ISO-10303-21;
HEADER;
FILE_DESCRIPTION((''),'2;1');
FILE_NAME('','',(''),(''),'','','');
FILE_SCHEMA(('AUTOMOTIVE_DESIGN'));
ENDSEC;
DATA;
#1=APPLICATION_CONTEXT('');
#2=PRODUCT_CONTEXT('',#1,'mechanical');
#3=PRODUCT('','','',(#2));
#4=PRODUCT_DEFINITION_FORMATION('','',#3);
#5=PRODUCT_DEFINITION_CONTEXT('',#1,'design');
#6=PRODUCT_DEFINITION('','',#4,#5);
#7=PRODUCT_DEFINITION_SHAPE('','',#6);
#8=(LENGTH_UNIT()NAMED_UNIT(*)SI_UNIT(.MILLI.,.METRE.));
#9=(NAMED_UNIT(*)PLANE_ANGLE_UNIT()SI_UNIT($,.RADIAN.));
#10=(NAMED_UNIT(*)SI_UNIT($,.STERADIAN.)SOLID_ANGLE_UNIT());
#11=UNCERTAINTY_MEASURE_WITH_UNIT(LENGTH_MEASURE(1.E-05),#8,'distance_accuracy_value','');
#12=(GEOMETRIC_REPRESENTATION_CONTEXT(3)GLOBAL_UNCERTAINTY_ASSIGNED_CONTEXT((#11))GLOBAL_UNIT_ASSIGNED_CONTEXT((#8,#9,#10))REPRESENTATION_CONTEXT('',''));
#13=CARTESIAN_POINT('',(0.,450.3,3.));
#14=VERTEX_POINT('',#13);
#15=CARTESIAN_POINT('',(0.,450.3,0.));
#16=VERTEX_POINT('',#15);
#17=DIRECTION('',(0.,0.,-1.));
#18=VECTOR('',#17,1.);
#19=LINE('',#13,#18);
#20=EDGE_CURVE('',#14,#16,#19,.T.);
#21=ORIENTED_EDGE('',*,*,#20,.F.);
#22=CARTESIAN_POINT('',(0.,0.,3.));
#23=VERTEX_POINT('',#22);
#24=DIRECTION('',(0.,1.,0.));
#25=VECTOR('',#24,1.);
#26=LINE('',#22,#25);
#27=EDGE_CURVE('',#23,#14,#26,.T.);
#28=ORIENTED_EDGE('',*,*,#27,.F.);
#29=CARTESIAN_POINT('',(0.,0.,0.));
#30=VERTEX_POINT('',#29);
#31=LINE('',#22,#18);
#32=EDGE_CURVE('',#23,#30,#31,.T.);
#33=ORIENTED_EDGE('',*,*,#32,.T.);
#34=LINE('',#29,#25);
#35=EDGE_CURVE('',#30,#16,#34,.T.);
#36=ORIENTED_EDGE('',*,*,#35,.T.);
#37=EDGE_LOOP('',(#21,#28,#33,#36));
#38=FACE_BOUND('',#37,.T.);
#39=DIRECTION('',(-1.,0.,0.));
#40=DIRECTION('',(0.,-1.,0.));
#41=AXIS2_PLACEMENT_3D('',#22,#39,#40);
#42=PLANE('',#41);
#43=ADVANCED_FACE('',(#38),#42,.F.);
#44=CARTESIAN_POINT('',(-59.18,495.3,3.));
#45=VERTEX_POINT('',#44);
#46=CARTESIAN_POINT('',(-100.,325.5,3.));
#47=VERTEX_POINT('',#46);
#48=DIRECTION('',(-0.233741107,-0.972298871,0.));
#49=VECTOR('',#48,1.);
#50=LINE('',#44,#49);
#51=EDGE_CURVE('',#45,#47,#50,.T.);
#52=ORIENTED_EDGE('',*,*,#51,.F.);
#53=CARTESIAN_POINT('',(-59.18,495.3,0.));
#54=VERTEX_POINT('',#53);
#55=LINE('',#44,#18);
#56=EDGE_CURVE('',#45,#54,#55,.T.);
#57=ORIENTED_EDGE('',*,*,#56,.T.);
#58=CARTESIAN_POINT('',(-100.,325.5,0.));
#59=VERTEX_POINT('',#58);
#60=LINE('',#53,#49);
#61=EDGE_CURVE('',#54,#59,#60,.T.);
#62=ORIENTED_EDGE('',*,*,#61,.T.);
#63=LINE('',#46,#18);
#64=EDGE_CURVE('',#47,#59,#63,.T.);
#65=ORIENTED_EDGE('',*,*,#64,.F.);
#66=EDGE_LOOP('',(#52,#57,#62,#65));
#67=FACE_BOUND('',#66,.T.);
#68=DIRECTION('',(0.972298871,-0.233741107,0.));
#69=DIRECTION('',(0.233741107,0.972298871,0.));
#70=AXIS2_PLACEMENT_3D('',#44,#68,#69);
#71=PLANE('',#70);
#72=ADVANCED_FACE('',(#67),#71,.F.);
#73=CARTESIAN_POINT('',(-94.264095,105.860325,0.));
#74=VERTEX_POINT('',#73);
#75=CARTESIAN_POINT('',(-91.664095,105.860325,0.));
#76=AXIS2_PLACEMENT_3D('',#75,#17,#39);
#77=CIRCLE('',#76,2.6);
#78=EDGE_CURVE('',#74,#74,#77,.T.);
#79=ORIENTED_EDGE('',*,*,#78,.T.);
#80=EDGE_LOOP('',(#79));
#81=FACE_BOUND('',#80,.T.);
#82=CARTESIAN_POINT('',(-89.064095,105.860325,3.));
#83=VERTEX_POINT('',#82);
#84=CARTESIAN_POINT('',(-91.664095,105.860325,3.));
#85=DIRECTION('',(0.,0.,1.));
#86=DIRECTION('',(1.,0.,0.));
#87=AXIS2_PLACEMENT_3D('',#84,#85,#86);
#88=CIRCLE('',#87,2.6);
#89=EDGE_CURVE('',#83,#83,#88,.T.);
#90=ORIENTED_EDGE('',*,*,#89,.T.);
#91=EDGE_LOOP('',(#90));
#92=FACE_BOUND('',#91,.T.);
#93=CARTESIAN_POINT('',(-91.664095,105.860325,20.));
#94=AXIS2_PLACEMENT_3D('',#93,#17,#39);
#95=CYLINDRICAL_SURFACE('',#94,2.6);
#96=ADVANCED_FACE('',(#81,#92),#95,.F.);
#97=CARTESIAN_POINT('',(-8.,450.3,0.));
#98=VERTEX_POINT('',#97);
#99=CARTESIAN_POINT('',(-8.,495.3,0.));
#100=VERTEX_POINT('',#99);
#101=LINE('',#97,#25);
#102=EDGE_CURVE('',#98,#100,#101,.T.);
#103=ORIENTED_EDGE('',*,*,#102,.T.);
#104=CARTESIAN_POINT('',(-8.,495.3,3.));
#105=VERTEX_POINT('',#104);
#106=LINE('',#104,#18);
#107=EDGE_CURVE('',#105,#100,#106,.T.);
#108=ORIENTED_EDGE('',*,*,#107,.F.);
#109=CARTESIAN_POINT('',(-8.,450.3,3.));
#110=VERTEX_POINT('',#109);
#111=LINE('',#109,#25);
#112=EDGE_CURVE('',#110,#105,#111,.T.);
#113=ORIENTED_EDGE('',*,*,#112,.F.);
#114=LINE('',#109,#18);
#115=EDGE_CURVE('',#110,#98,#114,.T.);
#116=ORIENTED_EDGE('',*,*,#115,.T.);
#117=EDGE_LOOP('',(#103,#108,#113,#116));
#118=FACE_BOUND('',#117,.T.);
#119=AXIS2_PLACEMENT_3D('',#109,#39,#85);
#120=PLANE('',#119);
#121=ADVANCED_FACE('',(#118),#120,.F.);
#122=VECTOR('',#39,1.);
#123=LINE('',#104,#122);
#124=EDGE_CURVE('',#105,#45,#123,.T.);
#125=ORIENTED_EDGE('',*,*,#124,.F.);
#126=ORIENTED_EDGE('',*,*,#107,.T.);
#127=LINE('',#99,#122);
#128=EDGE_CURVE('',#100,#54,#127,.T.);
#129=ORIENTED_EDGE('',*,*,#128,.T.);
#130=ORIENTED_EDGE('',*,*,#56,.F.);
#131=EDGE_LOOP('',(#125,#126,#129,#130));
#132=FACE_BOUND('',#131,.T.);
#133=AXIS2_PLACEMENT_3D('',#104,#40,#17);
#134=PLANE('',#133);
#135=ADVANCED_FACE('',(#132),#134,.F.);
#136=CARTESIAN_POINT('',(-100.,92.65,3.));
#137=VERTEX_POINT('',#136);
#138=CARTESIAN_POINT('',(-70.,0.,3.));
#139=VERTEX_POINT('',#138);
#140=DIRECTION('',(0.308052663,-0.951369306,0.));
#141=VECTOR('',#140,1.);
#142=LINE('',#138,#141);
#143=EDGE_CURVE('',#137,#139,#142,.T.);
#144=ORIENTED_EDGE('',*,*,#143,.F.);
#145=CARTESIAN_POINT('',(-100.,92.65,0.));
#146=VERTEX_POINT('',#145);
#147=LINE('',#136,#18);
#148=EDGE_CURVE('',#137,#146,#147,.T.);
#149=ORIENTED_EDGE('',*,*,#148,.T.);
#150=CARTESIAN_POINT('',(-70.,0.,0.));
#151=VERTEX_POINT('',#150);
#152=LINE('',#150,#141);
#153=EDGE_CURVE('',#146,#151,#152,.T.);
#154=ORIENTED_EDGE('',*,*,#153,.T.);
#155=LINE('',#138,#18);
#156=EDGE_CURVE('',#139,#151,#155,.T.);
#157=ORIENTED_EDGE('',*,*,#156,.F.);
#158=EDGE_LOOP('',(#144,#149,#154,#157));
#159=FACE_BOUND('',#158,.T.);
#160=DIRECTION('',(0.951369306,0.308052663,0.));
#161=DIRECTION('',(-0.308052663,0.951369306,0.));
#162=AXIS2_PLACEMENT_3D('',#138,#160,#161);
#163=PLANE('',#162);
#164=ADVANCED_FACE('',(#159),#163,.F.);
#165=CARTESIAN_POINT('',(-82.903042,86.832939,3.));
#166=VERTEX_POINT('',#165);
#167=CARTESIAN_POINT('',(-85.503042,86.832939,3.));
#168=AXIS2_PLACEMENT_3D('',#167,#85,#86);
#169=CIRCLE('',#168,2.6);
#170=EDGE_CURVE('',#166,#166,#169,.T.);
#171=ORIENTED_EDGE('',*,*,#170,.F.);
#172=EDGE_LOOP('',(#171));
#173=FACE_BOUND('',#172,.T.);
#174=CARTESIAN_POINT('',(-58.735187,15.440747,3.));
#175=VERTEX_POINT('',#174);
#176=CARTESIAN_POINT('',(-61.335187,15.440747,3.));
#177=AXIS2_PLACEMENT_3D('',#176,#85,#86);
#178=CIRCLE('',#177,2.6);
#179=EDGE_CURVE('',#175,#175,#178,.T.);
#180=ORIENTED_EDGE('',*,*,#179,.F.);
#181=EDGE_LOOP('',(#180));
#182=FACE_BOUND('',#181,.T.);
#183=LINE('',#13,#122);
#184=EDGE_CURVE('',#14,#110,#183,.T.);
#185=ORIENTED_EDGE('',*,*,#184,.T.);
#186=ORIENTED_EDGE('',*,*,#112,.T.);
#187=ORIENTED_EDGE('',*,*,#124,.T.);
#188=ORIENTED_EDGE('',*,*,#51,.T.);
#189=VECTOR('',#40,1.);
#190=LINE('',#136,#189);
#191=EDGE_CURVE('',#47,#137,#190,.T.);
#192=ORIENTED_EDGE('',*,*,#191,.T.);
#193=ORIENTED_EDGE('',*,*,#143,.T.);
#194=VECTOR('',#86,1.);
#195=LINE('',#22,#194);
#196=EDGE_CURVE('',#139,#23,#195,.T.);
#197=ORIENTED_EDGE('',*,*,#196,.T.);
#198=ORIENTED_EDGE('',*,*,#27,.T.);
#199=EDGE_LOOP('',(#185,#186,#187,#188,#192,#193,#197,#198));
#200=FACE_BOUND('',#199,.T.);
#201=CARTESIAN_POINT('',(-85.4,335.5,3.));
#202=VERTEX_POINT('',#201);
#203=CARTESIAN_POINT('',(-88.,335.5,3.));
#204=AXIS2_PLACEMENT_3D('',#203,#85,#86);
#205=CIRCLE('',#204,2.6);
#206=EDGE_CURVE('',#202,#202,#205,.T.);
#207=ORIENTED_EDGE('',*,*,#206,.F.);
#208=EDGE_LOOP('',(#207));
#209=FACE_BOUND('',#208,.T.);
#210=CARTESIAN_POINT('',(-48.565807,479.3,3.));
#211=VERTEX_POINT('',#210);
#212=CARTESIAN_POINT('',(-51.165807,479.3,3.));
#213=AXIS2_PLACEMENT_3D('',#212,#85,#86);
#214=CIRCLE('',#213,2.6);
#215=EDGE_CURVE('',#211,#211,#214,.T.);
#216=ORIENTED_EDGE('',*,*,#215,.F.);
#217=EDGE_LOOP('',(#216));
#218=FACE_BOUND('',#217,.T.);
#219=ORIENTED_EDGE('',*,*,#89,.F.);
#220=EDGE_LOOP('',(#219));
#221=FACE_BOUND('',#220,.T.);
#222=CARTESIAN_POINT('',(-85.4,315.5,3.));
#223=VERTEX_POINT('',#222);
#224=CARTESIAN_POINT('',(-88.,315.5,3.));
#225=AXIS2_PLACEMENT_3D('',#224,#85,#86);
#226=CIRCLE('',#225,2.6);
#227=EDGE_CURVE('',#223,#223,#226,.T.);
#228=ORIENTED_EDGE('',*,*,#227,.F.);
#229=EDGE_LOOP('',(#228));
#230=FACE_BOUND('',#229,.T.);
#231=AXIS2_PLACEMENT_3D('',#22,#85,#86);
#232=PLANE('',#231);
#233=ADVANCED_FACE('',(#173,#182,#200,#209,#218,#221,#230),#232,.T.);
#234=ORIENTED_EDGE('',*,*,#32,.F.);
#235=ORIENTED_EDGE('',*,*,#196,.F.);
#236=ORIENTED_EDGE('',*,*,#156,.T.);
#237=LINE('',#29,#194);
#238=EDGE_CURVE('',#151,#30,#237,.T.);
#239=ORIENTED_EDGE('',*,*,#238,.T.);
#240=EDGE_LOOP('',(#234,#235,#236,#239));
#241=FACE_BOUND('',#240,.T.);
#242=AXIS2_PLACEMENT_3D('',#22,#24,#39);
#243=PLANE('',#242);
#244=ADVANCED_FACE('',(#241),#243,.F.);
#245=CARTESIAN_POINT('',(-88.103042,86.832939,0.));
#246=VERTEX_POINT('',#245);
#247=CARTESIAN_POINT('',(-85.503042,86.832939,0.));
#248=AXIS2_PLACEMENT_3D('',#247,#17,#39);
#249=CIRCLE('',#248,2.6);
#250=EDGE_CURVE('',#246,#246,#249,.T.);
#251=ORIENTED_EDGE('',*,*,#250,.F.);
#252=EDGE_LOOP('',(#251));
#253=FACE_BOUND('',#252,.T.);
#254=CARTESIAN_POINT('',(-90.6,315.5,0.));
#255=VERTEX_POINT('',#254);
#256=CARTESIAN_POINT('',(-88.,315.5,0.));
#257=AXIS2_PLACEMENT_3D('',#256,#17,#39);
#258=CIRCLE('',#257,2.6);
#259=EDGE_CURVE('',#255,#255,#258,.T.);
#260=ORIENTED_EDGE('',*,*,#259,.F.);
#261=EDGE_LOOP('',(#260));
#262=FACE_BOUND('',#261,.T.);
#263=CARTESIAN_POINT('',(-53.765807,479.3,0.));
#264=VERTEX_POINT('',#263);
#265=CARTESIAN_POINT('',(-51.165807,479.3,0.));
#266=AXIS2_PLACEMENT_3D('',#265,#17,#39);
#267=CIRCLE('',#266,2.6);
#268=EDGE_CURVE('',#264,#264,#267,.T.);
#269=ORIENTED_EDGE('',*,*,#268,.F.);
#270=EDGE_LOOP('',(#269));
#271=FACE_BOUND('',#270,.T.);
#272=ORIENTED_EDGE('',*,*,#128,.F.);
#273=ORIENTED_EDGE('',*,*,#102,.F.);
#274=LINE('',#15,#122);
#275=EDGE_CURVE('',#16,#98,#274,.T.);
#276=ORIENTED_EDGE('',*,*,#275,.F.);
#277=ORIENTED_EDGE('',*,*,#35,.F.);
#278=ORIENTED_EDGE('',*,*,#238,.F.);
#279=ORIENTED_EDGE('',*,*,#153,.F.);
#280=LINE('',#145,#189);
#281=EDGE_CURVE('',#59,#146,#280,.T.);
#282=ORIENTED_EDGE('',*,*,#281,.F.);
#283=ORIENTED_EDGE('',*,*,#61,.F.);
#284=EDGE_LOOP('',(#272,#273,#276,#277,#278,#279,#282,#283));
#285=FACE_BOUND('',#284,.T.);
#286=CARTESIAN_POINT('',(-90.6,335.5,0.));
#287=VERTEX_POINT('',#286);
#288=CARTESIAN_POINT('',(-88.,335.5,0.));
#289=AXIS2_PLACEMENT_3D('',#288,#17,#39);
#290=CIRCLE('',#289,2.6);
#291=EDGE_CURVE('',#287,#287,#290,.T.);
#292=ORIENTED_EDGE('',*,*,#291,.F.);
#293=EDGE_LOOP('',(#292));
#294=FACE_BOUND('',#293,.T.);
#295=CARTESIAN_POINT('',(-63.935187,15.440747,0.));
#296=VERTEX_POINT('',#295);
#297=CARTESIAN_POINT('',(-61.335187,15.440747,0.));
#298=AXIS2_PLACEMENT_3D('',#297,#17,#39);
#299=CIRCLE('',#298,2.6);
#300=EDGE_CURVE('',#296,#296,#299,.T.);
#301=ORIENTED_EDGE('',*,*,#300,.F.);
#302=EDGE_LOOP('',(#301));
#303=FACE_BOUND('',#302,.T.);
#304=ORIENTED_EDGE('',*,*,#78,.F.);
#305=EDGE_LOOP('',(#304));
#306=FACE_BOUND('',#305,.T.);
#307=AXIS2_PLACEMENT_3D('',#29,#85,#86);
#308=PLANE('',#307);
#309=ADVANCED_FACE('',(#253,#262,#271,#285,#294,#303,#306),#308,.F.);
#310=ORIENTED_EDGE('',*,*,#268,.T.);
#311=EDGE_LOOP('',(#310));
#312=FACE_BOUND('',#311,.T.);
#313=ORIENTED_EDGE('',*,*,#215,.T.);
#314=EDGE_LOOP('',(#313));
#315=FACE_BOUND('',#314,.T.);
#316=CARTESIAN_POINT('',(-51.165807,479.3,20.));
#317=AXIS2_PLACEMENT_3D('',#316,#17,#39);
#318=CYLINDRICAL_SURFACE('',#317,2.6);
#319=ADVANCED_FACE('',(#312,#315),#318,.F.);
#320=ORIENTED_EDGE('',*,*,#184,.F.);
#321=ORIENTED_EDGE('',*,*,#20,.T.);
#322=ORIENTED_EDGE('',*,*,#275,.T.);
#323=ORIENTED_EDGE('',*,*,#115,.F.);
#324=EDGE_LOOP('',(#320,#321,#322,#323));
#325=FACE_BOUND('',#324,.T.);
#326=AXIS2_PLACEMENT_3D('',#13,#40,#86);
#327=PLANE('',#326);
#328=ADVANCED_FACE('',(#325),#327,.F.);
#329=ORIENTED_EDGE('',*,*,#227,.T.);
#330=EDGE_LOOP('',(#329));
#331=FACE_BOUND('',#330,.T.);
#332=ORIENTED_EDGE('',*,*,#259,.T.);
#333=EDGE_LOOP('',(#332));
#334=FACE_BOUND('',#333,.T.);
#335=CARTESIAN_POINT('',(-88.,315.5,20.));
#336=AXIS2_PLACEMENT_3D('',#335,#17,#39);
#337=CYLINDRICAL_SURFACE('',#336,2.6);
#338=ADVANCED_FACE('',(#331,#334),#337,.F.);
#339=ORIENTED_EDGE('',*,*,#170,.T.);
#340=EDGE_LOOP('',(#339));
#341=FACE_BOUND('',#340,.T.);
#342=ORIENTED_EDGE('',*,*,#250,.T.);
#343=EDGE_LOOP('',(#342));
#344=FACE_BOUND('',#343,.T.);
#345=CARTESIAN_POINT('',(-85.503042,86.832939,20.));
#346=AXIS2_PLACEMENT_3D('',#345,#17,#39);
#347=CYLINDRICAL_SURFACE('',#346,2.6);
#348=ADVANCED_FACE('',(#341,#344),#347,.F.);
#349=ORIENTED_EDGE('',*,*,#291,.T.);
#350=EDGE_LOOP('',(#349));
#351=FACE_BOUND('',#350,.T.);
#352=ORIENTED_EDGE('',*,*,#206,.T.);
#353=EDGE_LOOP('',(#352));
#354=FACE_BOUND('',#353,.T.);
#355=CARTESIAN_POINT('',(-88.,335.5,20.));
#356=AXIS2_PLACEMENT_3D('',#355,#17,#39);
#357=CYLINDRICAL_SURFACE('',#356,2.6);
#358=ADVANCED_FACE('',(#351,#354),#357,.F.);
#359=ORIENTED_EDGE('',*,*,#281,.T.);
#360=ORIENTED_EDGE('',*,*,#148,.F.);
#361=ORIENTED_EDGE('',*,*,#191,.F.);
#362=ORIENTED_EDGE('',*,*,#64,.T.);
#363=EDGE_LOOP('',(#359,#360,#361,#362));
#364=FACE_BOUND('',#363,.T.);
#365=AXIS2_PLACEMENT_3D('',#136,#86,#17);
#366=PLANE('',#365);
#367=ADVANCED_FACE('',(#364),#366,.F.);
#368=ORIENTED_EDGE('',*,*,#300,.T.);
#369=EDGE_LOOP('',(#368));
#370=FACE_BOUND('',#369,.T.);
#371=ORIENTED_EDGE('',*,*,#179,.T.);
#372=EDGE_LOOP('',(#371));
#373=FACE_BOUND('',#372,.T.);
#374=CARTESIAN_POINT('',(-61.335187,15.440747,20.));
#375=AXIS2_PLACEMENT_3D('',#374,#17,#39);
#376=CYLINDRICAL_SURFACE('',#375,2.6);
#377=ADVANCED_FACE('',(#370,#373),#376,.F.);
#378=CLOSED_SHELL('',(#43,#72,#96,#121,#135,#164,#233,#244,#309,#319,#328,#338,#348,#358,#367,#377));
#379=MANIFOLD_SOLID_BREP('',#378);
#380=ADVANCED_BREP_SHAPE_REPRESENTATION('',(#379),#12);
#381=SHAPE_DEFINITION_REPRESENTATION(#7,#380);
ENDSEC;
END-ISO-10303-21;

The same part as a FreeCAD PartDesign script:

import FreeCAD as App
import Part
import Sketcher
from FreeCAD import Vector
Q = App.Units.Quantity


def add_polygon(sketch, points):
    """Adds a closed chain of lines whose ends are joined by coincident constraints."""
    first, n = sketch.GeometryCount, len(points)
    for a, b in zip(points, points[1:] + points[:1]):
        sketch.addGeometry(Part.LineSegment(App.Vector(*a, 0), App.Vector(*b, 0)), False)
    for i in range(n):
        sketch.addConstraint(Sketcher.Constraint("Coincident", first + i, 2, first + (i + 1) % n, 1))

doc = App.newDocument("Part")
body = doc.addObject("PartDesign::Body", "Body")

sketch1 = body.newObject("Sketcher::SketchObject", "Sketch")
sketch1.AttachmentSupport = (doc.getObject("XY_Plane"), [""])
sketch1.MapMode = "FlatFace"
add_polygon(sketch1, [(0, 450), (-8, 450), (-8, 495), (-59, 495), (-100, 326), (-100, 93), (-70, 0), (0, 0)])
sketch1.addConstraint(Sketcher.Constraint("Horizontal", 0))
sketch1.addConstraint(Sketcher.Constraint("Vertical", 1))
sketch1.addConstraint(Sketcher.Constraint("Horizontal", 2))
sketch1.addConstraint(Sketcher.Constraint("Vertical", 4))
sketch1.addConstraint(Sketcher.Constraint("Horizontal", 6))
sketch1.addConstraint(Sketcher.Constraint("Vertical", 7))
sketch1.addConstraint(Sketcher.Constraint("Coincident", 6, 2, -1, 1))
sketch1.addConstraint(Sketcher.Constraint("DistanceX", 0, 2, 0, 1, Q("8 mm")))
sketch1.addConstraint(Sketcher.Constraint("DistanceX", 6, 1, 6, 2, Q("70 mm")))
sketch1.addConstraint(Sketcher.Constraint("DistanceY", 1, 1, 1, 2, Q("45 mm")))
sketch1.addConstraint(Sketcher.Constraint("DistanceY", 7, 1, 7, 2, Q("450.3 mm")))
sketch1.addConstraint(Sketcher.Constraint("DistanceX", 3, 2, -1, 1, Q("100 mm")))
sketch1.addConstraint(Sketcher.Constraint("DistanceX", 2, 2, 2, 1, Q("51.18 mm")))
sketch1.addConstraint(Sketcher.Constraint("DistanceY", 4, 2, 4, 1, Q("232.85 mm")))
sketch1.addConstraint(Sketcher.Constraint("DistanceY", -1, 1, 3, 2, Q("325.5 mm")))
pad1 = body.newObject("PartDesign::Pad", "Pad")
pad1.Profile = sketch1
pad1.Length = 3

sketch2 = body.newObject("Sketcher::SketchObject", "Sketch001")
sketch2.AttachmentSupport = (doc.getObject("XY_Plane"), [""])
sketch2.MapMode = "FlatFace"
sketch2.addGeometry(Part.Circle(Vector(-61.3, 15.4, 0), Vector(0, 0, 1), 2.6), False)
sketch2.addGeometry(Part.Circle(Vector(-85.5, 86.8, 0), Vector(0, 0, 1), 2.6), False)
sketch2.addGeometry(Part.Circle(Vector(-91.7, 105.9, 0), Vector(0, 0, 1), 2.6), False)
sketch2.addGeometry(Part.Circle(Vector(-88, 315.5, 0), Vector(0, 0, 1), 2.6), False)
sketch2.addGeometry(Part.Circle(Vector(-88, 335.5, 0), Vector(0, 0, 1), 2.6), False)
sketch2.addGeometry(Part.Circle(Vector(-51.2, 479.3, 0), Vector(0, 0, 1), 2.6), False)
sketch2.addConstraint(Sketcher.Constraint("Equal", 0, 1))
sketch2.addConstraint(Sketcher.Constraint("Equal", 1, 2))
sketch2.addConstraint(Sketcher.Constraint("Equal", 2, 3))
sketch2.addConstraint(Sketcher.Constraint("Equal", 3, 4))
sketch2.addConstraint(Sketcher.Constraint("Equal", 4, 5))
sketch2.addConstraint(Sketcher.Constraint("Vertical", 3, 3, 4, 3))
sketch2.addConstraint(Sketcher.Constraint("Diameter", 0, Q("5.2 mm")))
sketch2.addConstraint(Sketcher.Constraint("DistanceX", 3, 3, -1, 1, Q("88 mm")))
sketch2.addConstraint(Sketcher.Constraint("DistanceY", 3, 3, 4, 3, Q("20 mm")))
sketch2.addConstraint(Sketcher.Constraint("DistanceY", -1, 1, 3, 3, Q("315.5 mm")))
sketch2.addConstraint(Sketcher.Constraint("DistanceY", -1, 1, 5, 3, Q("479.3 mm")))
sketch2.addConstraint(Sketcher.Constraint("DistanceX", 1, 3, -1, 1, Q("85.503042 mm")))
sketch2.addConstraint(Sketcher.Constraint("DistanceY", -1, 1, 1, 3, Q("86.832939 mm")))
sketch2.addConstraint(Sketcher.Constraint("DistanceY", 0, 3, 1, 3, Q("71.392192 mm")))
sketch2.addConstraint(Sketcher.Constraint("DistanceX", 2, 3, 5, 3, Q("40.498288 mm")))
sketch2.addConstraint(Sketcher.Constraint("DistanceX", 0, 3, 5, 3, Q("10.169381 mm")))
sketch2.addConstraint(Sketcher.Constraint("DistanceX", 0, 3, -1, 1, Q("61.335187 mm")))
sketch2.addConstraint(Sketcher.Constraint("DistanceY", -1, 1, 2, 3, Q("105.860325 mm")))
pocket1 = body.newObject("PartDesign::Pocket", "Pocket")
pocket1.Profile = sketch2
pocket1.Length = 20
pocket1.Reversed = True

doc.recompute()
